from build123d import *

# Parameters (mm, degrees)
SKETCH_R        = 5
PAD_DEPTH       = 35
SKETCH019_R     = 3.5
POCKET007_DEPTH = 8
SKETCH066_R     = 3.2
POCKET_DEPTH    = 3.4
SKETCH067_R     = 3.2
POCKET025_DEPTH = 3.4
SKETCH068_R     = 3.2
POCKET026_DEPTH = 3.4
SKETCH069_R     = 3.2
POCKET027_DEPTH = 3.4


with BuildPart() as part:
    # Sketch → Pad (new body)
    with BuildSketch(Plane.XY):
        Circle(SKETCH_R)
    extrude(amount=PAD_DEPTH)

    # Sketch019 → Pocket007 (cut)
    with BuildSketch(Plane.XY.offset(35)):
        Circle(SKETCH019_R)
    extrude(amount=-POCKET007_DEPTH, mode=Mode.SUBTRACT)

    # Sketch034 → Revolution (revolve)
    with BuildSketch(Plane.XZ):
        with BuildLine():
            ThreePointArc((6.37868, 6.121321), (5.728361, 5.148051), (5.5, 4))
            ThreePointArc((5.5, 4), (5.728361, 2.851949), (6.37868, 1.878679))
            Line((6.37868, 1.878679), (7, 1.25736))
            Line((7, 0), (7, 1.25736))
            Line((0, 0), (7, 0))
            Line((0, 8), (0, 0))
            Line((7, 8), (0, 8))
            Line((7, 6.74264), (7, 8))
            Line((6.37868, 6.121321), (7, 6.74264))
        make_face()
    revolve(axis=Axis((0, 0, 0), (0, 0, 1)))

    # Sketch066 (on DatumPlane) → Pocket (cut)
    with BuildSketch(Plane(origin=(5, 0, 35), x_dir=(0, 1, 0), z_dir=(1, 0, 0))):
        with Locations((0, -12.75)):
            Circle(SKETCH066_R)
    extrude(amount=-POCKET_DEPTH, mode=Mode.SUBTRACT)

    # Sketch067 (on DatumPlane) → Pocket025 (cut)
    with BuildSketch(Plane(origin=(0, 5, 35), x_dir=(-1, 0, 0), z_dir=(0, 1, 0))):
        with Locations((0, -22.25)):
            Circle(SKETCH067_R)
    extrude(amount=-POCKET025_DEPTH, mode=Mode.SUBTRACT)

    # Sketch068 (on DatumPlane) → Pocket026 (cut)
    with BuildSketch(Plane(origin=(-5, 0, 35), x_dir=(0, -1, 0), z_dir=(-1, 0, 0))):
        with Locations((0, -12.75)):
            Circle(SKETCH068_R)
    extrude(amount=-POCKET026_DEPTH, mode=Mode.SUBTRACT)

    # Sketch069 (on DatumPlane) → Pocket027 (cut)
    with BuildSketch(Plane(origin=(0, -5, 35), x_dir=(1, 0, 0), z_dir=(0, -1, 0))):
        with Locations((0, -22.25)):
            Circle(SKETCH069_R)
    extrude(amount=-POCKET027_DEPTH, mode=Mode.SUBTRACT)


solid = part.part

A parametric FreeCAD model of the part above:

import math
import FreeCAD as App
import Part
import Sketcher

doc = App.newDocument("Part")
body = doc.addObject("PartDesign::Body", "Body")

sketch1 = body.newObject("Sketcher::SketchObject", "Sketch")
sketch1.AttachmentSupport = (doc.getObject("XY_Plane"), [""])
sketch1.MapMode = "FlatFace"
sketch1.addGeometry(Part.Circle(App.Vector(0, 0, 0), App.Vector(0, 0, 1), 5), False)
sketch1.addConstraint([
    Sketcher.Constraint("Coincident", 0, 3, -1, 1),
    Sketcher.Constraint("Diameter", 0, 10.0),
])
pad1 = body.newObject("PartDesign::Pad", "Pad")
pad1.Profile = sketch1
pad1.Length = 35

sketch2 = body.newObject("Sketcher::SketchObject", "Sketch001")
sketch2.AttachmentSupport = (doc.getObject("XY_Plane"), [""])
sketch2.MapMode = "FlatFace"
sketch2.AttachmentOffset = App.Placement(App.Vector(0, 0, 35), App.Rotation())
sketch2.addGeometry(Part.Circle(App.Vector(0, 0, 0), App.Vector(0, 0, 1), 3.5), False)
sketch2.addConstraint([
    Sketcher.Constraint("Coincident", 0, 3, -1, 1),
    Sketcher.Constraint("Diameter", 0, 7.0),
])
pocket1 = body.newObject("PartDesign::Pocket", "Pocket")
pocket1.Profile = sketch2
pocket1.Length = 8

sketch3 = body.newObject("Sketcher::SketchObject", "Sketch002")
sketch3.AttachmentSupport = (doc.getObject("XZ_Plane"), [""])
sketch3.MapMode = "FlatFace"
sketch3.addGeometry([
    Part.ArcOfCircle(Part.Circle(App.Vector(8.5, 4, 0), App.Vector(0, 0, 1), 3), math.radians(135), math.radians(180)),
    Part.LineSegment(App.Vector(6.4, 6.1, 0), App.Vector(7, 6.7, 0)),
    Part.LineSegment(App.Vector(7, 6.7, 0), App.Vector(7, 8, 0)),
    Part.LineSegment(App.Vector(7, 8, 0), App.Vector(0, 8, 0)),
    Part.LineSegment(App.Vector(0, 8, 0), App.Vector(0, 0, 0)),
    Part.LineSegment(App.Vector(0, 0, 0), App.Vector(7, 0, 0)),
    Part.LineSegment(App.Vector(7, 0, 0), App.Vector(7, 1.3, 0)),
    Part.LineSegment(App.Vector(7, 1.3, 0), App.Vector(6.4, 1.9, 0)),
    Part.ArcOfCircle(Part.Circle(App.Vector(8.5, 4, 0), App.Vector(0, 0, 1), 3), math.radians(180), math.radians(225)),
], False)
sketch3.addConstraint([
    Sketcher.Constraint("Tangent", 0, 1, 1, 1),
    Sketcher.Constraint("Coincident", 1, 2, 2, 1),
    Sketcher.Constraint("Coincident", 2, 2, 3, 1),
    Sketcher.Constraint("Coincident", 3, 2, 4, 1),
    Sketcher.Constraint("Coincident", 4, 2, 5, 1),
    Sketcher.Constraint("Coincident", 5, 2, 6, 1),
    Sketcher.Constraint("Coincident", 6, 2, 7, 1),
    Sketcher.Constraint("Tangent", 7, 2, 8, 2),
    Sketcher.Constraint("Tangent", 8, 1, 0, 2),
    Sketcher.Constraint("Vertical", 2),
    Sketcher.Constraint("Horizontal", 3),
    Sketcher.Constraint("Vertical", 4),
    Sketcher.Constraint("Horizontal", 5),
    Sketcher.Constraint("Vertical", 6),
    Sketcher.Constraint("Coincident", 4, 2, -1, 1),
    Sketcher.Constraint("Equal", 0, 8),
    Sketcher.Constraint("Perpendicular", 1, 7),
    Sketcher.Constraint("Vertical", 2, 2, 5, 2),
    Sketcher.Constraint("Vertical", 0, 1, 7, 2),
    Sketcher.Constraint("Equal", 2, 6),
    Sketcher.Constraint("DistanceX", 3, 2, 3, 1, 7.0),
    Sketcher.Constraint("DistanceY", 4, 2, 4, 1, 8.0),
    Sketcher.Constraint("DistanceY", -1, 1, 8, 1, 4.0),
    Sketcher.Constraint("DistanceX", -1, 1, 8, 1, 5.5),
    Sketcher.Constraint("Radius", 0, 2.999994),
])
revolution = body.newObject("PartDesign::Revolution", "Revolution")
revolution.Profile = sketch3
revolution.ReferenceAxis = (sketch3, ["V_Axis"])
revolution.Angle = 360

sketch4 = body.newObject("Sketcher::SketchObject", "Sketch003")
sketch4.AttachmentSupport = (doc.getObject("YZ_Plane"), [""])
sketch4.MapMode = "FlatFace"
sketch4.AttachmentOffset = App.Placement(App.Vector(0, 0, 5), App.Rotation())
sketch4.addGeometry(Part.Circle(App.Vector(0, 22.2, 0), App.Vector(0, 0, 1), 3.2), False)
sketch4.addConstraint([
    Sketcher.Constraint("PointOnObject", 0, 3, -2),
    Sketcher.Constraint("Diameter", 0, 6.4),
    Sketcher.Constraint("DistanceY", -1, 1, 0, 3, 22.25),
])
pocket2 = body.newObject("PartDesign::Pocket", "Pocket001")
pocket2.Profile = sketch4
pocket2.Length = 3.4

sketch5 = body.newObject("Sketcher::SketchObject", "Sketch004")
sketch5.AttachmentSupport = (doc.getObject("XZ_Plane"), [""])
sketch5.MapMode = "FlatFace"
sketch5.AttachmentOffset = App.Placement(App.Vector(0, 0, -5), App.Rotation())
sketch5.addGeometry(Part.Circle(App.Vector(0, 12.8, 0), App.Vector(0, 0, 1), 3.2), False)
sketch5.addConstraint([
    Sketcher.Constraint("PointOnObject", 0, 3, -2),
    Sketcher.Constraint("Diameter", 0, 6.4),
    Sketcher.Constraint("DistanceY", -1, 1, 0, 3, 12.75),
])
pocket3 = body.newObject("PartDesign::Pocket", "Pocket002")
pocket3.Profile = sketch5
pocket3.Length = 3.4
pocket3.Reversed = True

sketch6 = body.newObject("Sketcher::SketchObject", "Sketch005")
sketch6.AttachmentSupport = (doc.getObject("YZ_Plane"), [""])
sketch6.MapMode = "FlatFace"
sketch6.AttachmentOffset = App.Placement(App.Vector(0, 0, -5), App.Rotation())
sketch6.addGeometry(Part.Circle(App.Vector(0, 22.2, 0), App.Vector(0, 0, 1), 3.2), False)
sketch6.addConstraint([
    Sketcher.Constraint("PointOnObject", 0, 3, -2),
    Sketcher.Constraint("Diameter", 0, 6.4),
    Sketcher.Constraint("DistanceY", -1, 1, 0, 3, 22.25),
])
pocket4 = body.newObject("PartDesign::Pocket", "Pocket003")
pocket4.Profile = sketch6
pocket4.Length = 3.4
pocket4.Reversed = True

sketch7 = body.newObject("Sketcher::SketchObject", "Sketch006")
sketch7.AttachmentSupport = (doc.getObject("XZ_Plane"), [""])
sketch7.MapMode = "FlatFace"
sketch7.AttachmentOffset = App.Placement(App.Vector(0, 0, 5), App.Rotation())
sketch7.addGeometry(Part.Circle(App.Vector(0, 12.8, 0), App.Vector(0, 0, 1), 3.2), False)
sketch7.addConstraint([
    Sketcher.Constraint("PointOnObject", 0, 3, -2),
    Sketcher.Constraint("Diameter", 0, 6.4),
    Sketcher.Constraint("DistanceY", -1, 1, 0, 3, 12.75),
])
pocket5 = body.newObject("PartDesign::Pocket", "Pocket004")
pocket5.Profile = sketch7
pocket5.Length = 3.4

doc.recompute()
